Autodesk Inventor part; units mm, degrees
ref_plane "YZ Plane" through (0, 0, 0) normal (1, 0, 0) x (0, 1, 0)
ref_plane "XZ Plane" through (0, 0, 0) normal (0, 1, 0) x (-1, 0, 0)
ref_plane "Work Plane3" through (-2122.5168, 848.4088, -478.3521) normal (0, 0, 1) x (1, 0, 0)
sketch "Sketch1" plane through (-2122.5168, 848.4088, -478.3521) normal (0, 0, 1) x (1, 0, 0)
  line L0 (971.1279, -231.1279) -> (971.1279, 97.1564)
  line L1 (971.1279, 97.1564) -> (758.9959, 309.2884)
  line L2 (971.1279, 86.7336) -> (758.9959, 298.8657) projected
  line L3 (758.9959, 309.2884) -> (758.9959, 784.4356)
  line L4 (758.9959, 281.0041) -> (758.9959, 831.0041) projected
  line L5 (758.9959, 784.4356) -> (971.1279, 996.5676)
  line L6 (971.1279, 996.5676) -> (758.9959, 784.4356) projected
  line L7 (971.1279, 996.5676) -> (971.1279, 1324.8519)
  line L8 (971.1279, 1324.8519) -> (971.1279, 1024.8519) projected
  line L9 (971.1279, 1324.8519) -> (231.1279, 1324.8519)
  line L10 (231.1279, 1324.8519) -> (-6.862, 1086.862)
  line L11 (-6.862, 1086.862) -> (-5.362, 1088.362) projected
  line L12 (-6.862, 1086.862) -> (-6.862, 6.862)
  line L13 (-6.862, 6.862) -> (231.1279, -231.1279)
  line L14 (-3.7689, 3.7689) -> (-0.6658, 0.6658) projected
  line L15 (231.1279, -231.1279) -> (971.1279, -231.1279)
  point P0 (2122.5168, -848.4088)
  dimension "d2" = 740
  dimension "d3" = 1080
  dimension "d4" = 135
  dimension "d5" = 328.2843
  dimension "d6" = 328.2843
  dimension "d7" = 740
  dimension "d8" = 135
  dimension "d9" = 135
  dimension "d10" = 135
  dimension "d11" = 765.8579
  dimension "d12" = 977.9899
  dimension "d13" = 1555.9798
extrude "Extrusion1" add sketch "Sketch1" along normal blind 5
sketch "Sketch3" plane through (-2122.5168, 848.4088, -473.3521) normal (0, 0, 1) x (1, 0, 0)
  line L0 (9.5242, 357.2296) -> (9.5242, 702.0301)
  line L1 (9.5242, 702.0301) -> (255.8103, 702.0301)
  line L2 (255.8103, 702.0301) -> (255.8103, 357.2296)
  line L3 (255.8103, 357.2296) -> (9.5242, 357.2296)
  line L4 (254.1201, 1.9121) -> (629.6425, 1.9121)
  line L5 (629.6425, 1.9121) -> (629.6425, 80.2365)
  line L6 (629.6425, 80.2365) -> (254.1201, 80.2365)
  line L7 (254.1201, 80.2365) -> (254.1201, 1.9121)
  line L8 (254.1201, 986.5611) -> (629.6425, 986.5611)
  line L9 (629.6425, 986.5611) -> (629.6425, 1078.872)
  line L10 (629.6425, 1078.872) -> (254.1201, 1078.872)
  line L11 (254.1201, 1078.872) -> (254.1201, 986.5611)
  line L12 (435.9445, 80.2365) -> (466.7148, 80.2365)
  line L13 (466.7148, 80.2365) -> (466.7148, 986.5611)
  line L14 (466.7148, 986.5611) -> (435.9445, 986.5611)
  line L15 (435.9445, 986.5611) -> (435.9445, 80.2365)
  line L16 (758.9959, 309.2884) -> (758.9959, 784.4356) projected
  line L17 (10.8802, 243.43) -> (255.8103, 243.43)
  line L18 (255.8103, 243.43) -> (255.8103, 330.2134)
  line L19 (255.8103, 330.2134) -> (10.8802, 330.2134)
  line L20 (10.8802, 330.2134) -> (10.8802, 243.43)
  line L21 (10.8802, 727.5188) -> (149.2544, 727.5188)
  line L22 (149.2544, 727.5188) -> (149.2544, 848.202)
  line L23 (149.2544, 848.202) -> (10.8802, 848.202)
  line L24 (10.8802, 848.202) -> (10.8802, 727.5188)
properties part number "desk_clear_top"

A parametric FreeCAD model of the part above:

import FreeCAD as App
import Part
import Sketcher

V = App.Vector
Q = App.Units.Quantity


def add_polygon(sketch, points):
    """Adds a closed chain of lines whose ends are joined by coincident constraints."""
    first, n = sketch.GeometryCount, len(points)
    for a, b in zip(points, points[1:] + points[:1]):
        sketch.addGeometry(Part.LineSegment(App.Vector(*a, 0), App.Vector(*b, 0)), False)
    for i in range(n):
        sketch.addConstraint(Sketcher.Constraint("Coincident", first + i, 2, first + (i + 1) % n, 1))

doc = App.newDocument("Part")
params = doc.addObject("Spreadsheet::Sheet", "Params")
for row, (alias, value) in enumerate([
    ("sketch1_width", "740 mm"),
    ("sketch1_height", "1080 mm"),
    ("sketch1_length", "300 mm"),
    ("pad1_length", "5 mm"),
], start=1):
    params.set(f"A{row}", alias)
    params.set(f"B{row}", "=" + value)
    params.setAlias(f"B{row}", alias)

body = doc.addObject("PartDesign::Body", "Body")

# Sketch on XY plane
sketch1 = body.newObject("Sketcher::SketchObject", "Sketch")
sketch1.AttachmentSupport = (doc.getObject("XY_Plane"), [""])
sketch1.MapMode = "FlatFace"
sketch1.AttachmentOffset = App.Placement(V(0, 0, -478.3521), App.Rotation())
add_polygon(sketch1, [(-1891.3889, 617.2809), (-1151.3889, 617.2809), (-1151.3889, 945.5652), (-1363.5209, 1157.6972), (-1363.5209, 1632.8444), (-1151.3889, 1844.9764), (-1151.3889, 2173.2607), (-1891.3889, 2173.2607), (-2129.3788, 1935.2708), (-2129.3788, 855.2708)])  # lines 0-9
sketch1.addConstraint([
    Sketcher.Constraint("Horizontal", 0),
    Sketcher.Constraint("Vertical", 1),
    Sketcher.Constraint("Vertical", 3),
    Sketcher.Constraint("Vertical", 5),
    Sketcher.Constraint("Horizontal", 6),
    Sketcher.Constraint("Vertical", 8),
    Sketcher.Constraint("Perpendicular", 2, 4),
    Sketcher.Constraint("Parallel", 4, 7),
    Sketcher.Constraint("Perpendicular", 7, 9),
    Sketcher.Constraint("Vertical", 1, 2, 4, 2),
    Sketcher.Constraint("Vertical", 6, 2, 9, 2),
    Sketcher.Constraint("Equal", 1, 5),
    Sketcher.Constraint("Equal", 2, 4),
    Sketcher.Constraint("DistanceX", 0, 1, 0, 2, Q("740 mm")),
    Sketcher.Constraint("DistanceY", 8, 2, 8, 1, Q("1080 mm")),
    Sketcher.Constraint("DistanceX", 7, 2, 4, 2, Q("977.99 mm")),
    Sketcher.Constraint("Distance", 2, Q("300 mm")),
    Sketcher.Constraint("DistanceY", 1, 1, 1, 2, Q("328.2843 mm")),
    Sketcher.Constraint("DistanceX", 0, 2, -1, 1, Q("1151.389 mm")),
    Sketcher.Constraint("DistanceY", -1, 1, 0, 2, Q("617.281 mm")),
])
sketch1.setExpression("Constraints[23]", "Params.sketch1_width")
sketch1.setExpression("Constraints[24]", "Params.sketch1_height")
sketch1.setExpression("Constraints[26]", "Params.sketch1_length")
pad1 = body.newObject("PartDesign::Pad", "Pad")
pad1.Profile = sketch1
pad1.setExpression("Length", "Params.pad1_length")

doc.recompute()
